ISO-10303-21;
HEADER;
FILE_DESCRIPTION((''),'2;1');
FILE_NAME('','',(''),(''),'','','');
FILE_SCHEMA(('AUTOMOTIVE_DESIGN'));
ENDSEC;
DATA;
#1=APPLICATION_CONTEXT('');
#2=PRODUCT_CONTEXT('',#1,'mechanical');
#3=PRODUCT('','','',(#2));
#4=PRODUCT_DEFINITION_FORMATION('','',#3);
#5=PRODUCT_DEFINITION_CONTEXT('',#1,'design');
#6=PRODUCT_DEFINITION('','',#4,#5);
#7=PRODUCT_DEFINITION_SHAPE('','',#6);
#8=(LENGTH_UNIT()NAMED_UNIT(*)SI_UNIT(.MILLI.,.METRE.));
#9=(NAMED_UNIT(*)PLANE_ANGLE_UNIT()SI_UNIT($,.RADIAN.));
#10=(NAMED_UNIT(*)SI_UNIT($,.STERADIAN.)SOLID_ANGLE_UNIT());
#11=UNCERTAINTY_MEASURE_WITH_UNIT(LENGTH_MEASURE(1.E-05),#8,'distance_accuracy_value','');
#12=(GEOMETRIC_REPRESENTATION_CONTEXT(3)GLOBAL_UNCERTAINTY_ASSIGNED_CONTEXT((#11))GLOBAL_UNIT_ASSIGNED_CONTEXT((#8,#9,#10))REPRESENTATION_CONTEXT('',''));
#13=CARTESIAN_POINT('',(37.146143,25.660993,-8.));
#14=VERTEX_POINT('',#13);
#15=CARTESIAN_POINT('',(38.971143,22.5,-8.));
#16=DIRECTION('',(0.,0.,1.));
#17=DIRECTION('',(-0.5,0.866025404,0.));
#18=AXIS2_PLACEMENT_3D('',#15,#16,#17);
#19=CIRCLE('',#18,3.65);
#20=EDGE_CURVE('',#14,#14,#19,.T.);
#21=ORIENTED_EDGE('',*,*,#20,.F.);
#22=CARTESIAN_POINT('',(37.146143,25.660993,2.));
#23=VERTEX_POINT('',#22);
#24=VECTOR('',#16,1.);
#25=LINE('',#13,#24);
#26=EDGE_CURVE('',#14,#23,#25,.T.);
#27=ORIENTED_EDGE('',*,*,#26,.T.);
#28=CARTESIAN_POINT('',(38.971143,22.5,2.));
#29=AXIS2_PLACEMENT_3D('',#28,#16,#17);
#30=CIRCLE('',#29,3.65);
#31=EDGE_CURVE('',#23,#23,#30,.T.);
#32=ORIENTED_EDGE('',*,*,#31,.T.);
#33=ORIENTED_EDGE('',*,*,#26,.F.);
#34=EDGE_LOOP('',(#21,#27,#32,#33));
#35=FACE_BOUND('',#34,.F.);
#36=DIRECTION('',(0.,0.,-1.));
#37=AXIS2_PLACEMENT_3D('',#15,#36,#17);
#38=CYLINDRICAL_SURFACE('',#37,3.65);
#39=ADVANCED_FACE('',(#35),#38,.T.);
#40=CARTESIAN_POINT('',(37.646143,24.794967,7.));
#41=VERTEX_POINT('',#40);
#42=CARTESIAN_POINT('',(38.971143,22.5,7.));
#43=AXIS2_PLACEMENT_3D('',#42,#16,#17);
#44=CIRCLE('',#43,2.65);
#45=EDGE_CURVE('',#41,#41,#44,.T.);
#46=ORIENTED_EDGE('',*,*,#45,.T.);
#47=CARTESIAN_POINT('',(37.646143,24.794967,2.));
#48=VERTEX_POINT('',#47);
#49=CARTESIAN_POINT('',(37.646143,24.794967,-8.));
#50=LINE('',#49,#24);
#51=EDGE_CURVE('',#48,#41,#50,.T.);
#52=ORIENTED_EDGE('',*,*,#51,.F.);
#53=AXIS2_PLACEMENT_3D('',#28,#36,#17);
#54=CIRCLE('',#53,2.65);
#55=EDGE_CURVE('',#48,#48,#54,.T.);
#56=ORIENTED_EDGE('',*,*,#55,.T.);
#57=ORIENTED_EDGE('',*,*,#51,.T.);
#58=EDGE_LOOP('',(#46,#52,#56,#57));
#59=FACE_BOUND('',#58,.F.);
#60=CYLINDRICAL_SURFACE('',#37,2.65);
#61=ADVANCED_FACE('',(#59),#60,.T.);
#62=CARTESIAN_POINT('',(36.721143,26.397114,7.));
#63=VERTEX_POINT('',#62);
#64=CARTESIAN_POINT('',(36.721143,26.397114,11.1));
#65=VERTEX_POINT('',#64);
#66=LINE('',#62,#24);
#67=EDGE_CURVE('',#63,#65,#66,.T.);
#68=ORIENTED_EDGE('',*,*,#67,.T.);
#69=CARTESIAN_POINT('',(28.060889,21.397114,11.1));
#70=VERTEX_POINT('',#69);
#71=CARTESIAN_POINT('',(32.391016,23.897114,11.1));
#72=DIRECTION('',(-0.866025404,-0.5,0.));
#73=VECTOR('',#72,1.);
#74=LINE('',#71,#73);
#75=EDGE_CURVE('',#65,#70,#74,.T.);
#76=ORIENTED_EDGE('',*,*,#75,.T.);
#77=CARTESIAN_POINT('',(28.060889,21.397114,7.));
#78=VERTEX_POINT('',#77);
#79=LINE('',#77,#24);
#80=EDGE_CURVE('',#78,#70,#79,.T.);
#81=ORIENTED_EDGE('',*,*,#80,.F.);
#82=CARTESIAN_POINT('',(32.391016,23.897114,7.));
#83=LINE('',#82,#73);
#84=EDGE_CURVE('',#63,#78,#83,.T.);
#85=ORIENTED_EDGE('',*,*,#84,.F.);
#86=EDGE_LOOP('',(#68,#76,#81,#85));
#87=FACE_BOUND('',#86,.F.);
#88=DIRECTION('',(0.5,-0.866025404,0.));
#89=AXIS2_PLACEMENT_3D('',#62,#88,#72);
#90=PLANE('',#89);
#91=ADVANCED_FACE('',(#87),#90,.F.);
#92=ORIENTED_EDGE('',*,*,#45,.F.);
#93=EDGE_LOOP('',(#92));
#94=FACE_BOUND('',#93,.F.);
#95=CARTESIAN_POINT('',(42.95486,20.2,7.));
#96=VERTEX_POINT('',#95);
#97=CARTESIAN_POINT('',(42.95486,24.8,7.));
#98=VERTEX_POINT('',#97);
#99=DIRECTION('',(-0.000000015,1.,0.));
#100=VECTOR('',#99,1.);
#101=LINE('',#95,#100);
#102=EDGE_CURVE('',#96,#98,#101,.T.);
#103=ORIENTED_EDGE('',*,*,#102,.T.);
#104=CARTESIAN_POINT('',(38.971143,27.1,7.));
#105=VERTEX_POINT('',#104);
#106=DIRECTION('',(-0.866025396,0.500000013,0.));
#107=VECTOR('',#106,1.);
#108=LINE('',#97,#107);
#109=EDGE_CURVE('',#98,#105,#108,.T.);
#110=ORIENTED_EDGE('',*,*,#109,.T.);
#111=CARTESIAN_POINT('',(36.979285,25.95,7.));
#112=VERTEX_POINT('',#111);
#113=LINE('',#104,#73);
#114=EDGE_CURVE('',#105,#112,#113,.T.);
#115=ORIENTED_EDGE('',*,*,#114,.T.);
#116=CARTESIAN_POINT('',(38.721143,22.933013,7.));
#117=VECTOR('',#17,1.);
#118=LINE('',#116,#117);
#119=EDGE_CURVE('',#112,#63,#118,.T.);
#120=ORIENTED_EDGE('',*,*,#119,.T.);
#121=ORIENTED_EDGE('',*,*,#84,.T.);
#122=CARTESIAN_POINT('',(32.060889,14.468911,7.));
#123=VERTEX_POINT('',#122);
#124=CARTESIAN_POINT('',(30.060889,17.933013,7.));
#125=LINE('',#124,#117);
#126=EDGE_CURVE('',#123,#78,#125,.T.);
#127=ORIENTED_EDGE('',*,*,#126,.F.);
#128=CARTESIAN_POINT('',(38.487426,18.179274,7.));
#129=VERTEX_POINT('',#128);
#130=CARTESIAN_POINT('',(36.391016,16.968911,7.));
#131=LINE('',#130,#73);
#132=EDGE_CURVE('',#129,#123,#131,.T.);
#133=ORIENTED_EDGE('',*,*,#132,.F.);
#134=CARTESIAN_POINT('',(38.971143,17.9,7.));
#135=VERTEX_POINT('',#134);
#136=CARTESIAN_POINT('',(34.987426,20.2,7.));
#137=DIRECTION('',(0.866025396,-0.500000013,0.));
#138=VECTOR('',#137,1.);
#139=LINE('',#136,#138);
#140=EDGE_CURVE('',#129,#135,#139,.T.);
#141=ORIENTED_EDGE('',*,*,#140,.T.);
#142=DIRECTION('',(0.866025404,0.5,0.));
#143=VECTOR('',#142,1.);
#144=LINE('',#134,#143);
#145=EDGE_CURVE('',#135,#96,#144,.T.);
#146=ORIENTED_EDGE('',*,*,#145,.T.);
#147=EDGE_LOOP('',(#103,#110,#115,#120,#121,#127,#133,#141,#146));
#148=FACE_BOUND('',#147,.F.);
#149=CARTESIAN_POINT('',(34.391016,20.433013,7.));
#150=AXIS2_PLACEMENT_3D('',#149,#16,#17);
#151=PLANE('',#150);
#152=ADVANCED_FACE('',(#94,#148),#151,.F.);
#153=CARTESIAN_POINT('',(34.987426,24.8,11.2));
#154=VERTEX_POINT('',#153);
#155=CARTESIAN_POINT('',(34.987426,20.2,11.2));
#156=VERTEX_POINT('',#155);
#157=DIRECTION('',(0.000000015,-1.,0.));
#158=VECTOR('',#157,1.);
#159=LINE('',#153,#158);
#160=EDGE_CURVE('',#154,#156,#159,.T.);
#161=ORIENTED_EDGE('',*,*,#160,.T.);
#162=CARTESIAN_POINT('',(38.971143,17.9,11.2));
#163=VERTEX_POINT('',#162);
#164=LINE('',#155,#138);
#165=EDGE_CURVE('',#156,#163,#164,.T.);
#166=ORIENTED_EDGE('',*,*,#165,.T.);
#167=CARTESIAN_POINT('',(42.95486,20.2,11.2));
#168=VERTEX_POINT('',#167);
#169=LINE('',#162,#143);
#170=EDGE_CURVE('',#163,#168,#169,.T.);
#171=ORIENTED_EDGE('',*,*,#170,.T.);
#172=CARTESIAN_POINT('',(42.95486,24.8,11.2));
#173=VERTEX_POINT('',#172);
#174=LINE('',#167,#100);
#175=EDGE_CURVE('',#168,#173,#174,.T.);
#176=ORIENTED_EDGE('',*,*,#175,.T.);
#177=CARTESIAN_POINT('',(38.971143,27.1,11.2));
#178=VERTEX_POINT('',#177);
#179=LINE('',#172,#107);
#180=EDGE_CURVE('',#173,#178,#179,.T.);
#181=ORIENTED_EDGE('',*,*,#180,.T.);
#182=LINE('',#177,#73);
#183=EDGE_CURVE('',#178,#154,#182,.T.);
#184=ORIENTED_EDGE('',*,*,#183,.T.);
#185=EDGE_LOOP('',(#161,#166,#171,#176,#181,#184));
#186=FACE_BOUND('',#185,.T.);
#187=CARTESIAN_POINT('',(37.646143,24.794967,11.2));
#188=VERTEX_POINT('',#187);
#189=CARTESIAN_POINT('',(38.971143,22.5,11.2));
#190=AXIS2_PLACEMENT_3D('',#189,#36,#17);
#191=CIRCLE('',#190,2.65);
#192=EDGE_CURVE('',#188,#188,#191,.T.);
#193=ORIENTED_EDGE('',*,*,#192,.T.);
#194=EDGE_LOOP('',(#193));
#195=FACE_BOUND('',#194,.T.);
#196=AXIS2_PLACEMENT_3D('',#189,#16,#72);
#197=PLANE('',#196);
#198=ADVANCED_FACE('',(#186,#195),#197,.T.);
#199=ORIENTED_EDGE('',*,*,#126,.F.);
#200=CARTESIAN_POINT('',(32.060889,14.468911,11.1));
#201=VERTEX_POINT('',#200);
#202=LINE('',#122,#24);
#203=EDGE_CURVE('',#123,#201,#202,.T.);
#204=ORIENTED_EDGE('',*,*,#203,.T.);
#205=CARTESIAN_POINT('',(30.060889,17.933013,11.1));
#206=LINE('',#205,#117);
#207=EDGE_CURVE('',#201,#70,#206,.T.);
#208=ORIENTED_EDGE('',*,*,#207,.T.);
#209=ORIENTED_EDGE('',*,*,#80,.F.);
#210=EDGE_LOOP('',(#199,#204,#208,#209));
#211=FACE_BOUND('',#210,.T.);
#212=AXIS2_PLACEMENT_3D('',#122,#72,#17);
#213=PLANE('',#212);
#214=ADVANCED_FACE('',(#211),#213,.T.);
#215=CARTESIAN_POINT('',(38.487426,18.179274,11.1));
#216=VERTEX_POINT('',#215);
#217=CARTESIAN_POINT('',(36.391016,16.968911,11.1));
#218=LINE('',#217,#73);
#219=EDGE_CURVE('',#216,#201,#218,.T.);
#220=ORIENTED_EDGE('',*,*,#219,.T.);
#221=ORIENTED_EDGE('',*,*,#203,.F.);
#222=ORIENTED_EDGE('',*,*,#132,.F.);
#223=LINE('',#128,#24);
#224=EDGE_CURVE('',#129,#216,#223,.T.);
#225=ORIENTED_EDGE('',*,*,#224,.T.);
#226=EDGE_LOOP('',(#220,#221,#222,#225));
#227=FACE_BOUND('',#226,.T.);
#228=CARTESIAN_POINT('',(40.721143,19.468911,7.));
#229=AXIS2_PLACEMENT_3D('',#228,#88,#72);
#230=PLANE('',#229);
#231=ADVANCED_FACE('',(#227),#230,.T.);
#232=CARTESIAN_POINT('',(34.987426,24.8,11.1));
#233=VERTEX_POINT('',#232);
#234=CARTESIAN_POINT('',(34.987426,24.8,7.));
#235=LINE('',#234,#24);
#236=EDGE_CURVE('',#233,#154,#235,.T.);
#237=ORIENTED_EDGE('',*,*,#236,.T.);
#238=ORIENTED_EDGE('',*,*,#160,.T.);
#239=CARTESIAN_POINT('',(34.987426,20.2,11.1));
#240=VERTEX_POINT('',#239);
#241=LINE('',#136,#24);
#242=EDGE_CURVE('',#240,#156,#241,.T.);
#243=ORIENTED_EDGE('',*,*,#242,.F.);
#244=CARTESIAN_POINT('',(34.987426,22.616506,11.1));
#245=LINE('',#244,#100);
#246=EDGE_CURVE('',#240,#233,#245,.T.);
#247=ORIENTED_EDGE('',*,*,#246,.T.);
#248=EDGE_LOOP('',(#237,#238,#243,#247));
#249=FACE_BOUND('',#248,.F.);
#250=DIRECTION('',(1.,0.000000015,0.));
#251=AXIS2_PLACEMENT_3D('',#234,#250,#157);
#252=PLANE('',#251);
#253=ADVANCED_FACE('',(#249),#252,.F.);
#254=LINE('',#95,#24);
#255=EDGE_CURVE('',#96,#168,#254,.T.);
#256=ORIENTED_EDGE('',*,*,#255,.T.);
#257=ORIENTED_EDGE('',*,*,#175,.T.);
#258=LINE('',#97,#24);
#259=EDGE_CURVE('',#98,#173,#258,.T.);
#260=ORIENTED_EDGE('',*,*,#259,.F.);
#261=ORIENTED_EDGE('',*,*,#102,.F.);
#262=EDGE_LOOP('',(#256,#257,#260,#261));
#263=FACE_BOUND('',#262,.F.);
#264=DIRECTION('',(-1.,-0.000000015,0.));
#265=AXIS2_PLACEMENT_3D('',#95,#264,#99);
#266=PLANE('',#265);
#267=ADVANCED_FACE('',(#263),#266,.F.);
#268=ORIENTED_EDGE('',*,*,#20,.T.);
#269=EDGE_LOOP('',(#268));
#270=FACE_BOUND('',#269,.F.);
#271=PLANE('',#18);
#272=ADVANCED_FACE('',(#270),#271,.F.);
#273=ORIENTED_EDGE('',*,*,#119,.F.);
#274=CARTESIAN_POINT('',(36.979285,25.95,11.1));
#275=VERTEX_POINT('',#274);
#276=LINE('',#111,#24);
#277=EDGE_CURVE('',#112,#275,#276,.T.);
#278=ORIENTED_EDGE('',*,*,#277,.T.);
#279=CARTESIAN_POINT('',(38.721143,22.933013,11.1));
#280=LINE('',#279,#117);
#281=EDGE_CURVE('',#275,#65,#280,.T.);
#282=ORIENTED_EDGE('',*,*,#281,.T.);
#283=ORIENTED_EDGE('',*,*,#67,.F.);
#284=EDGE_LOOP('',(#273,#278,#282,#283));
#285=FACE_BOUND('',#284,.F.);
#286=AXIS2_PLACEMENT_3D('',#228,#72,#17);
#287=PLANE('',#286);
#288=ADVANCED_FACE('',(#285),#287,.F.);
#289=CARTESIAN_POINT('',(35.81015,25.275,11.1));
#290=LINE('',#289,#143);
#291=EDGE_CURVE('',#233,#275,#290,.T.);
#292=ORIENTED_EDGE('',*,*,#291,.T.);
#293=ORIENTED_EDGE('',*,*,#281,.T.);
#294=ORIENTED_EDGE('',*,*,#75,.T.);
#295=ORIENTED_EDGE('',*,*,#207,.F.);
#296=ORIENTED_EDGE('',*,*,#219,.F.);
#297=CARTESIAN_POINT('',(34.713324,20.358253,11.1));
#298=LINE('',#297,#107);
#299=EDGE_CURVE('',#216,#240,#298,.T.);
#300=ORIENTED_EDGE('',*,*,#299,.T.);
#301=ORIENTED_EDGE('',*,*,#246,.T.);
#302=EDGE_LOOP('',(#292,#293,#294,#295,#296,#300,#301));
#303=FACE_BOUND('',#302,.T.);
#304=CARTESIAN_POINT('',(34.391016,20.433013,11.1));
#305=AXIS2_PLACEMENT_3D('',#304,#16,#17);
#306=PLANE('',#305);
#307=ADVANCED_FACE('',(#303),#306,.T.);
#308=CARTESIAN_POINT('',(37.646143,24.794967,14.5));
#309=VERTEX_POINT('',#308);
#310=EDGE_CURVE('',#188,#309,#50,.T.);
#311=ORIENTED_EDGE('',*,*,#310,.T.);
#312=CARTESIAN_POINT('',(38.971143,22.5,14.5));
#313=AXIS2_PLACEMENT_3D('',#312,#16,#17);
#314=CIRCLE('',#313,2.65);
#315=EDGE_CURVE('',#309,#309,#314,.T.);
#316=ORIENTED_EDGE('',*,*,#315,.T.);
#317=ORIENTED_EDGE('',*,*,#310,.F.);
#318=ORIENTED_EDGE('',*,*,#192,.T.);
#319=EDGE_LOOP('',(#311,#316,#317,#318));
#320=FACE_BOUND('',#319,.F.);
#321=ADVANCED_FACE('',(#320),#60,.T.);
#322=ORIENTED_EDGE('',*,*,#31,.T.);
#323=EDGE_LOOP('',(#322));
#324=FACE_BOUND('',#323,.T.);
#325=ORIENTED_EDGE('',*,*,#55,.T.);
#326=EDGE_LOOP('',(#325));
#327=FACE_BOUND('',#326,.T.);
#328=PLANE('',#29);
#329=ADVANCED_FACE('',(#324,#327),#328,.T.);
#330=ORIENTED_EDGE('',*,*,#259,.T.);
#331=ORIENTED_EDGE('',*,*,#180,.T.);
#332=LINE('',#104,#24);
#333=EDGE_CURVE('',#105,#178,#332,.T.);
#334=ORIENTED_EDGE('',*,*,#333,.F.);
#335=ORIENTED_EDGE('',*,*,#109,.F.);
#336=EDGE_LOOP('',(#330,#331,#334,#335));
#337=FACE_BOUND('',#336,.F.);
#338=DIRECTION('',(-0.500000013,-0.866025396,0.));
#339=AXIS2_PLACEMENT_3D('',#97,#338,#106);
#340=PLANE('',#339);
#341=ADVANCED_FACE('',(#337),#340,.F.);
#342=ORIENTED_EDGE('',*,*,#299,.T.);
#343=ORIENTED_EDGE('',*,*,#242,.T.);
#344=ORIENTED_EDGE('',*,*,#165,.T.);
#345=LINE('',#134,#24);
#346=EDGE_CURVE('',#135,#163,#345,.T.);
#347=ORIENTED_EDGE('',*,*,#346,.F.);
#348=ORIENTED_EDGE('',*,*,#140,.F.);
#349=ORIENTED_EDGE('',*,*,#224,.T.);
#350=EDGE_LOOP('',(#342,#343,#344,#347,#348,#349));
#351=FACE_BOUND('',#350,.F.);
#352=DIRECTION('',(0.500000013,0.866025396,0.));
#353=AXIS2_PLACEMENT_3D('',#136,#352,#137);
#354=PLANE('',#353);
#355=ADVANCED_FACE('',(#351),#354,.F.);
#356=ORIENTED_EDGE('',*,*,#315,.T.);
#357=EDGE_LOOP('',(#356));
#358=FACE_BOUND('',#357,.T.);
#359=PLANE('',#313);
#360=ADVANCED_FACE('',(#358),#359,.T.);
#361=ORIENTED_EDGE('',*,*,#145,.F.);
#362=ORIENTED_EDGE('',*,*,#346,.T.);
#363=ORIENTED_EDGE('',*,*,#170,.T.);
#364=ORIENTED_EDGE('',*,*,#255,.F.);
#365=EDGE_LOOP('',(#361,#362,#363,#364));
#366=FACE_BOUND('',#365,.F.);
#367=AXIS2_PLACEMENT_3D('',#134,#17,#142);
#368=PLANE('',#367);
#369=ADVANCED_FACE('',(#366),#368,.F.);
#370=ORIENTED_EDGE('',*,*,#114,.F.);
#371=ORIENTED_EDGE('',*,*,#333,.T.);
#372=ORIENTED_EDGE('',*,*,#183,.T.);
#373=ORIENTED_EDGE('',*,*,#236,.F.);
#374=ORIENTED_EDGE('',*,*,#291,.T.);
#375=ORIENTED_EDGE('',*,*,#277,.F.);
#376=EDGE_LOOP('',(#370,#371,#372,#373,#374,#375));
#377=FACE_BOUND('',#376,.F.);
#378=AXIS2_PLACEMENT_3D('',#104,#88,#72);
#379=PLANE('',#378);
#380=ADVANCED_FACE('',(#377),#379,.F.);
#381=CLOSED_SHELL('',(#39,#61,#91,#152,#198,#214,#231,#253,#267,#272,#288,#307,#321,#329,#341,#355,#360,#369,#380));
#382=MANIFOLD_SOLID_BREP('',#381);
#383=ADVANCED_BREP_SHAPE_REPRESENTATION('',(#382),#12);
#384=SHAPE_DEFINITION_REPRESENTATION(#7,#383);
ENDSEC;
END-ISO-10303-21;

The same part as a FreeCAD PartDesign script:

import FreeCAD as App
import Part
import Sketcher

V = App.Vector
Q = App.Units.Quantity

doc = App.newDocument("Part")
params = doc.addObject("Spreadsheet::Sheet", "Params")
for row, (alias, value) in enumerate([
    ("sketch1_width", "8 mm"),
    ("sketch1_height", "10 mm"),
    ("pad1_length", "4.1 mm"),
    ("sketch2_height", "4.6 mm"),
    ("sketch2_length", "4.6 mm"),
    ("pad2_length", "4.2 mm"),
    ("sketch3_diameter", "7.3 mm"),
    ("pad3_length", "10 mm"),
    ("sketch4_diameter", "5.3 mm"),
    ("pad4_length", "22.5 mm"),
], start=1):
    params.set(f"A{row}", alias)
    params.set(f"B{row}", "=" + value)
    params.setAlias(f"B{row}", alias)

body = doc.addObject("PartDesign::Body", "Body")

# Sketch on XY plane
sketch1 = body.newObject("Sketcher::SketchObject", "Sketch")
sketch1.AttachmentSupport = (doc.getObject("XY_Plane"), [""])
sketch1.MapMode = "FlatFace"
sketch1.AttachmentOffset = App.Placement(V(0, 0, 7), App.Rotation())
sketch1.addGeometry(Part.LineSegment(V(-4, 10, 0), V(-4, 0, 0)), False)
sketch1.addGeometry(Part.LineSegment(V(-4, 0, 0), V(4, 0, 0)), False)
sketch1.addGeometry(Part.LineSegment(V(4, 0, 0), V(4, 10, 0)), False)
sketch1.addGeometry(Part.LineSegment(V(4, 10, 0), V(-4, 10, 0)), False)
sketch1.addConstraint(Sketcher.Constraint("Coincident", 0, 2, 1, 1))
sketch1.addConstraint(Sketcher.Constraint("Coincident", 1, 2, 2, 1))
sketch1.addConstraint(Sketcher.Constraint("Coincident", 2, 2, 3, 1))
sketch1.addConstraint(Sketcher.Constraint("Coincident", 3, 2, 0, 1))
sketch1.addConstraint(Sketcher.Constraint("Vertical", 0))
sketch1.addConstraint(Sketcher.Constraint("Horizontal", 1))
sketch1.addConstraint(Sketcher.Constraint("Vertical", 2))
sketch1.addConstraint(Sketcher.Constraint("Horizontal", 3))
sketch1.addConstraint(Sketcher.Constraint("PointOnObject", 0, 2, -1))
sketch1.addConstraint(Sketcher.Constraint("DistanceX", 1, 1, 1, 2, Q("8 mm")))
sketch1.addConstraint(Sketcher.Constraint("DistanceY", 0, 2, 0, 1, Q("10 mm")))
sketch1.addConstraint(Sketcher.Constraint("DistanceX", 0, 2, -1, 1, Q("3.5 mm")))
sketch1.setExpression("Constraints[9]", "Params.sketch1_width")
sketch1.setExpression("Constraints[10]", "Params.sketch1_height")
pad1 = body.newObject("PartDesign::Pad", "Pad")
pad1.Profile = sketch1
pad1.setExpression("Length", "Params.pad1_length")
body2 = doc.addObject("PartDesign::Body", "Body001")

# Sketch on XY plane
sketch2 = body2.newObject("Sketcher::SketchObject", "Sketch001")
sketch2.AttachmentSupport = (doc.getObject("XY_Plane001"), [""])
sketch2.MapMode = "FlatFace"
sketch2.AttachmentOffset = App.Placement(V(0, 0, 7), App.Rotation())
sketch2.addGeometry(Part.LineSegment(V(0, 4.6, 0), V(-4, 2.3, 0)), False)
sketch2.addGeometry(Part.LineSegment(V(-4, 2.3, 0), V(-4, -2.3, 0)), False)
sketch2.addGeometry(Part.LineSegment(V(-4, -2.3, 0), V(0, -4.6, 0)), False)
sketch2.addGeometry(Part.LineSegment(V(0, -4.6, 0), V(4, -2.3, 0)), False)
sketch2.addGeometry(Part.LineSegment(V(4, -2.3, 0), V(4, 2.3, 0)), False)
sketch2.addGeometry(Part.LineSegment(V(4, 2.3, 0), V(0, 4.6, 0)), False)
sketch2.addConstraint(Sketcher.Constraint("Coincident", 0, 2, 1, 1))
sketch2.addConstraint(Sketcher.Constraint("Coincident", 1, 2, 2, 1))
sketch2.addConstraint(Sketcher.Constraint("Coincident", 2, 2, 3, 1))
sketch2.addConstraint(Sketcher.Constraint("Coincident", 3, 2, 4, 1))
sketch2.addConstraint(Sketcher.Constraint("Coincident", 4, 2, 5, 1))
sketch2.addConstraint(Sketcher.Constraint("Coincident", 5, 2, 0, 1))
sketch2.addConstraint(Sketcher.Constraint("Vertical", 1))
sketch2.addConstraint(Sketcher.Constraint("Vertical", 4))
sketch2.addConstraint(Sketcher.Constraint("Symmetric", 0, 2, 3, 2, -1, 1))
sketch2.addConstraint(Sketcher.Constraint("Symmetric", 2, 2, 5, 2, -1, 1))
sketch2.addConstraint(Sketcher.Constraint("PointOnObject", 2, 2, -2))
sketch2.addConstraint(Sketcher.Constraint("Parallel", 2, 5))
sketch2.addConstraint(Sketcher.Constraint("Horizontal", 1, 2, 3, 2))
sketch2.addConstraint(Sketcher.Constraint("Angle", 0, Q("-150.000001 deg")))
sketch2.addConstraint(Sketcher.Constraint("DistanceY", 1, 2, 1, 1, Q("4.6 mm")))
sketch2.addConstraint(Sketcher.Constraint("Distance", 0, Q("4.6 mm")))
sketch2.setExpression("Constraints[14]", "Params.sketch2_height")
sketch2.setExpression("Constraints[15]", "Params.sketch2_length")
pad2 = body2.newObject("PartDesign::Pad", "Pad001")
pad2.Profile = sketch2
pad2.setExpression("Length", "Params.pad2_length")
body3 = doc.addObject("PartDesign::Body", "Body002")

# Sketch on XY plane
sketch3 = body3.newObject("Sketcher::SketchObject", "Sketch002")
sketch3.AttachmentSupport = (doc.getObject("XY_Plane002"), [""])
sketch3.MapMode = "FlatFace"
sketch3.AttachmentOffset = App.Placement(V(0, 0, -8), App.Rotation())
sketch3.addGeometry(Part.Circle(V(0, 0, 0), V(0, 0, 1), 3.6), False)
sketch3.addConstraint(Sketcher.Constraint("Coincident", 0, 3, -1, 1))
sketch3.addConstraint(Sketcher.Constraint("Diameter", 0, Q("7.3 mm")))
sketch3.setExpression("Constraints[1]", "Params.sketch3_diameter")
pad3 = body3.newObject("PartDesign::Pad", "Pad002")
pad3.Profile = sketch3
pad3.setExpression("Length", "Params.pad3_length")
body4 = doc.addObject("PartDesign::Body", "Body003")

# Sketch on XY plane
sketch4 = body4.newObject("Sketcher::SketchObject", "Sketch003")
sketch4.AttachmentSupport = (doc.getObject("XY_Plane003"), [""])
sketch4.MapMode = "FlatFace"
sketch4.AttachmentOffset = App.Placement(V(0, 0, -8), App.Rotation())
sketch4.addGeometry(Part.Circle(V(0, 0, 0), V(0, 0, 1), 2.6), False)
sketch4.addConstraint(Sketcher.Constraint("Coincident", 0, 3, -1, 1))
sketch4.addConstraint(Sketcher.Constraint("Diameter", 0, Q("5.3 mm")))
sketch4.setExpression("Constraints[1]", "Params.sketch4_diameter")
pad4 = body4.newObject("PartDesign::Pad", "Pad003")
pad4.Profile = sketch4
pad4.setExpression("Length", "Params.pad4_length")
doc.recompute()

boolean = body4.newObject("PartDesign::Boolean", "Boolean")
boolean.Type = "Fuse"
boolean.addObjects([body])
doc.recompute()

boolean2 = body4.newObject("PartDesign::Boolean", "Boolean001")
boolean2.Type = "Fuse"
boolean2.addObjects([body2])
doc.recompute()

boolean3 = body4.newObject("PartDesign::Boolean", "Boolean002")
boolean3.Type = "Fuse"
boolean3.addObjects([body3])
body5 = doc.addObject("PartDesign::Body", "Body004")
doc.recompute()

body4.Placement = App.Placement(V(0, -45, 0), App.Rotation(V(0, 0, 1), 0))
boolean4 = body5.newObject("PartDesign::Boolean", "Boolean003")
boolean4.Type = "Fuse"
boolean4.addObjects([body4])
body6 = doc.addObject("PartDesign::Body", "Body005")
doc.recompute()

body5.Placement = App.Placement(V(0, 0, 0), App.Rotation(V(0, 0, 1), 120))
boolean5 = body6.newObject("PartDesign::Boolean", "Boolean004")
boolean5.Type = "Fuse"
boolean5.addObjects([body5])

doc.recompute()
